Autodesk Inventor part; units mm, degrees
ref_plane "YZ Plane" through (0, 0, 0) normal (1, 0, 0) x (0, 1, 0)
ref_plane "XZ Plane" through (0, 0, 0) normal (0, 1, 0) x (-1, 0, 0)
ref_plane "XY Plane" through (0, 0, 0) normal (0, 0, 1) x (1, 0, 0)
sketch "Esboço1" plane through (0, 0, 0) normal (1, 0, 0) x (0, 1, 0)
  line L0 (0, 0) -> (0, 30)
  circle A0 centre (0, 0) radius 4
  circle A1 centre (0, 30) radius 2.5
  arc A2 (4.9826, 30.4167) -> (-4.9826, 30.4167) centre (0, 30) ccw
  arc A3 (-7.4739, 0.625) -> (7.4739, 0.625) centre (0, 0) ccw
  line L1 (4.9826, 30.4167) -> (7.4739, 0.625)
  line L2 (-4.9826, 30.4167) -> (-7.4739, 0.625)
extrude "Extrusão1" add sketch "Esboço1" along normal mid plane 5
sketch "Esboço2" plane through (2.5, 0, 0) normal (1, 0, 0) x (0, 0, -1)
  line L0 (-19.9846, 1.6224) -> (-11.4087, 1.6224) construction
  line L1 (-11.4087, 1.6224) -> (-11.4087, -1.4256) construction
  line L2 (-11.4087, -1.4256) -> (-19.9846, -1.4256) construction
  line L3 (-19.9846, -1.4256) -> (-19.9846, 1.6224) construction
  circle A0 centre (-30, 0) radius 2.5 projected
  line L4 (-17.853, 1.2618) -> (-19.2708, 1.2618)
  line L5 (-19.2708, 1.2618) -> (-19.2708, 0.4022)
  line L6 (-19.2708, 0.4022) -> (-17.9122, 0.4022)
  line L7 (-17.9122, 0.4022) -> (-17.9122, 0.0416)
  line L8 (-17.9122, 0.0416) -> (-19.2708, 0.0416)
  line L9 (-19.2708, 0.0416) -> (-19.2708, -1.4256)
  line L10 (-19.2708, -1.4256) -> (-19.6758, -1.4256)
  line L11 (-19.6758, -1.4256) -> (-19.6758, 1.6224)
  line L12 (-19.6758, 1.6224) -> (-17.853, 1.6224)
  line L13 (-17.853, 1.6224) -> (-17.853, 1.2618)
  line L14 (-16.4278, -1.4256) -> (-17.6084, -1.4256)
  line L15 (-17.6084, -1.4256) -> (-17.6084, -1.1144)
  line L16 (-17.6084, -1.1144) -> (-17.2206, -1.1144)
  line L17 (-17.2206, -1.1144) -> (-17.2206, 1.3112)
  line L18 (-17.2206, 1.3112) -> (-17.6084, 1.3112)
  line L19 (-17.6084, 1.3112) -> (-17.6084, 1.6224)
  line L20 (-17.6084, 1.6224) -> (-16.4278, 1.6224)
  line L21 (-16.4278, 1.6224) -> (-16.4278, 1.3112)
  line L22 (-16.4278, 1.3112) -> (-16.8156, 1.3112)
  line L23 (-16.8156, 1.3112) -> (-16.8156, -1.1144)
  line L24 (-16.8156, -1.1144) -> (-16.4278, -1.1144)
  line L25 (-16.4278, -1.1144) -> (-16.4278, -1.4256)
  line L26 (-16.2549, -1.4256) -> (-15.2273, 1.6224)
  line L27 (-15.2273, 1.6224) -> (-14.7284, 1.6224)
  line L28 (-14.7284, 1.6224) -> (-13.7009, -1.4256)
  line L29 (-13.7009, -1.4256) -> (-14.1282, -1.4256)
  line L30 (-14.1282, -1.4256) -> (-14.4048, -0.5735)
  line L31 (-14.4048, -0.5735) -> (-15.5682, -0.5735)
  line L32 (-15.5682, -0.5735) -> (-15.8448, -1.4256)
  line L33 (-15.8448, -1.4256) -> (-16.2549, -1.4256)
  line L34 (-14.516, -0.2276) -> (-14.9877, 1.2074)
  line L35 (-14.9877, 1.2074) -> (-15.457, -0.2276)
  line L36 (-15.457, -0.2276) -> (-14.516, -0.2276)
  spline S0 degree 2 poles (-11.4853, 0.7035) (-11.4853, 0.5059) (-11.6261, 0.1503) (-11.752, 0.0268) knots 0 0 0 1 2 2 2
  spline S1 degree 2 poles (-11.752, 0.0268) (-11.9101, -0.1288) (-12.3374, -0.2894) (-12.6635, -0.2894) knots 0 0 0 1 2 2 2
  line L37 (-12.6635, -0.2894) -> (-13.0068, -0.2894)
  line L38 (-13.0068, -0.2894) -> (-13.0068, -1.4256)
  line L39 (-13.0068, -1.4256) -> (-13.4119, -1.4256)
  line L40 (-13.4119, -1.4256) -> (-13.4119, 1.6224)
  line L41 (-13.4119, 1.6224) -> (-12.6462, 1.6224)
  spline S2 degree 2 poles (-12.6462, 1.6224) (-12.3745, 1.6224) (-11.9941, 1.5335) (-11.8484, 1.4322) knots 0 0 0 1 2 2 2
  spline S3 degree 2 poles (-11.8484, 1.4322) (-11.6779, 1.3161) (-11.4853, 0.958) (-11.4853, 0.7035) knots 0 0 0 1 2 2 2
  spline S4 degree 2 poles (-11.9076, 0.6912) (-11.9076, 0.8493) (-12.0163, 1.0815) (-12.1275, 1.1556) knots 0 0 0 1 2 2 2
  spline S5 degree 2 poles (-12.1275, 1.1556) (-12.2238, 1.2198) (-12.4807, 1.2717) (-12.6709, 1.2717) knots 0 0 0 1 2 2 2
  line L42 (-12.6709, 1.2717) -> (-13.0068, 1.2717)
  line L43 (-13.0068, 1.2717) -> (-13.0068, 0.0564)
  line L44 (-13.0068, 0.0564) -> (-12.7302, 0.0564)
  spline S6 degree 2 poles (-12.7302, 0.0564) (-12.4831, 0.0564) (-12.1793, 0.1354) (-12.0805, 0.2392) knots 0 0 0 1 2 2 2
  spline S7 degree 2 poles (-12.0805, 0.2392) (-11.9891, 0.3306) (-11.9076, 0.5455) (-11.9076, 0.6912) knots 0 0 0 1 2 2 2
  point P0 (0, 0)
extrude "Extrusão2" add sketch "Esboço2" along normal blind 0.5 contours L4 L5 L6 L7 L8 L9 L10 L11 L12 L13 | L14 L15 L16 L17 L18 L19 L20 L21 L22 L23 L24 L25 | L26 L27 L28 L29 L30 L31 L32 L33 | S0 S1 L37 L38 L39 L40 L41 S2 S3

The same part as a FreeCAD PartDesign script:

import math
import FreeCAD as App
import Part
import Sketcher

V = App.Vector
Q = App.Units.Quantity


def add_polygon(sketch, points):
    """Adds a closed chain of lines whose ends are joined by coincident constraints."""
    first, n = sketch.GeometryCount, len(points)
    for a, b in zip(points, points[1:] + points[:1]):
        sketch.addGeometry(Part.LineSegment(App.Vector(*a, 0), App.Vector(*b, 0)), False)
    for i in range(n):
        sketch.addConstraint(Sketcher.Constraint("Coincident", first + i, 2, first + (i + 1) % n, 1))

doc = App.newDocument("Part")
body = doc.addObject("PartDesign::Body", "Body")

# Sketch on YZ plane
sketch1 = doc.addObject("Sketcher::SketchObject", "Sketch")
body.addObject(sketch1)
sketch1.AttachmentSupport = (doc.YZ_Plane, [""])
sketch1.MapMode = "FlatFace"
sketch1.addGeometry([
    Part.LineSegment(V(7.4739, 0.625, 0), V(4.9826, 30.4167, 0)),  # 0
    Part.ArcOfCircle(Part.Circle(V(0, 30, 0), V(0, 0, 1), 4.999994), math.radians(4.780581), math.radians(175.219419)),  # 1
    Part.LineSegment(V(-4.9826, 30.4167, 0), V(-7.4739, 0.625, 0)),  # 2
    Part.ArcOfCircle(Part.Circle(V(0, 0, 0), V(0, 0, 1), 7.499987), math.radians(175.2198), math.radians(364.7802)),  # 3
    Part.Circle(V(0, 0, 0), V(0, 0, 1), 4),  # 4
    Part.Circle(V(0, 30, 0), V(0, 0, 1), 2.5),  # 5
], False)
sketch1.addConstraint([
    Sketcher.Constraint("Tangent", 0, 2, 1, 1),
    Sketcher.Constraint("Tangent", 1, 2, 2, 1),
    Sketcher.Constraint("Tangent", 2, 2, 3, 1),
    Sketcher.Constraint("Tangent", 3, 2, 0, 1),
    Sketcher.Constraint("Coincident", 3, 3, -1, 1),
    Sketcher.Constraint("Coincident", 4, 3, -1, 1),
    Sketcher.Constraint("Coincident", 5, 3, 1, 3),
    Sketcher.Constraint("PointOnObject", 1, 3, -2),
    Sketcher.Constraint("Diameter", 4, Q("8 mm")),
    Sketcher.Constraint("Diameter", 5, Q("5 mm")),
    Sketcher.Constraint("Radius", 1, Q("5 mm")),
    Sketcher.Constraint("Radius", 3, Q("7.5 mm")),
    Sketcher.Constraint("DistanceY", -1, 1, 1, 3, Q("30 mm")),
])
pad1 = doc.addObject("PartDesign::Pad", "Pad")
body.addObject(pad1)
pad1.Profile = sketch1
pad1.Length = 5
pad1.Midplane = True

# Sketch on YZ plane
sketch2 = doc.addObject("Sketcher::SketchObject", "Sketch001")
body.addObject(sketch2)
sketch2.AttachmentSupport = (doc.YZ_Plane, [""])
sketch2.MapMode = "FlatFace"
sketch2.AttachmentOffset = App.Placement(V(0, 0, 2.5), App.Rotation())
add_polygon(sketch2, [(1.2618, 19.2708), (1.2618, 17.853), (1.6224, 17.853), (1.6224, 19.6758), (-1.4256, 19.6758), (-1.4256, 19.2708), (0.0416, 19.2708), (0.0416, 17.9122), (0.4022, 17.9122), (0.4022, 19.2708)])  # lines 0-9
add_polygon(sketch2, [(-1.4256, 17.6084), (-1.4256, 16.4278), (-1.1144, 16.4278), (-1.1144, 16.8156), (1.3112, 16.8156), (1.3112, 16.4278), (1.6224, 16.4278), (1.6224, 17.6084), (1.3112, 17.6084), (1.3112, 17.2206), (-1.1144, 17.2206), (-1.1144, 17.6084)])  # lines 10-21
add_polygon(sketch2, [(1.6224, 15.2273), (-1.4256, 16.2549), (-1.4256, 15.8448), (-0.5735, 15.5682), (-0.5735, 14.4048), (-1.4256, 14.1282), (-1.4256, 13.7009), (1.6224, 14.7284)])  # lines 22-29
add_polygon(sketch2, [(1.2074, 14.9877), (-0.2276, 14.516), (-0.2276, 15.457)])  # lines 30-32
sketch2.addGeometry(Part.BSplineCurve([V(0.7035, 11.4853, 0), V(0.5059, 11.4853, 0), V(0.1503, 11.6261, 0), V(0.0268, 11.752, 0)], [3, 1, 3], [0, 1, 2], False, 2, [1, 1, 1, 1], False), False)  # 33
sketch2.addGeometry(Part.BSplineCurve([V(1.4322, 11.8484, 0), V(1.3161, 11.6779, 0), V(0.958, 11.4853, 0), V(0.7035, 11.4853, 0)], [3, 1, 3], [0, 1, 2], False, 2, [1, 1, 1, 1], False), False)  # 34
sketch2.addGeometry(Part.BSplineCurve([V(1.6224, 12.6462, 0), V(1.6224, 12.3745, 0), V(1.5335, 11.9941, 0), V(1.4322, 11.8484, 0)], [3, 1, 3], [0, 1, 2], False, 2, [1, 1, 1, 1], False), False)  # 35
sketch2.addGeometry(Part.LineSegment(V(1.6224, 12.6462, 0), V(1.6224, 13.4119, 0)), False)  # 36
sketch2.addGeometry(Part.LineSegment(V(1.6224, 13.4119, 0), V(-1.4256, 13.4119, 0)), False)  # 37
sketch2.addGeometry(Part.LineSegment(V(-1.4256, 13.4119, 0), V(-1.4256, 13.0068, 0)), False)  # 38
sketch2.addGeometry(Part.LineSegment(V(-1.4256, 13.0068, 0), V(-0.2894, 13.0068, 0)), False)  # 39
sketch2.addGeometry(Part.LineSegment(V(-0.2894, 13.0068, 0), V(-0.2894, 12.6635, 0)), False)  # 40
sketch2.addGeometry(Part.BSplineCurve([V(0.0268, 11.752, 0), V(-0.1288, 11.9101, 0), V(-0.2894, 12.3374, 0), V(-0.2894, 12.6635, 0)], [3, 1, 3], [0, 1, 2], False, 2, [1, 1, 1, 1], False), False)  # 41
sketch2.addGeometry(Part.BSplineCurve([V(0.6912, 11.9076, 0), V(0.8493, 11.9076, 0), V(1.0815, 12.0163, 0), V(1.1556, 12.1275, 0)], [3, 1, 3], [0, 1, 2], False, 2, [1, 1, 1, 1], False), False)  # 42
sketch2.addGeometry(Part.BSplineCurve([V(0.2392, 12.0805, 0), V(0.3306, 11.9891, 0), V(0.5455, 11.9076, 0), V(0.6912, 11.9076, 0)], [3, 1, 3], [0, 1, 2], False, 2, [1, 1, 1, 1], False), False)  # 43
sketch2.addGeometry(Part.BSplineCurve([V(0.0564, 12.7302, 0), V(0.0564, 12.4831, 0), V(0.1354, 12.1793, 0), V(0.2392, 12.0805, 0)], [3, 1, 3], [0, 1, 2], False, 2, [1, 1, 1, 1], False), False)  # 44
sketch2.addGeometry(Part.LineSegment(V(0.0564, 12.7302, 0), V(0.0564, 13.0068, 0)), False)  # 45
sketch2.addGeometry(Part.LineSegment(V(0.0564, 13.0068, 0), V(1.2717, 13.0068, 0)), False)  # 46
sketch2.addGeometry(Part.LineSegment(V(1.2717, 13.0068, 0), V(1.2717, 12.6709, 0)), False)  # 47
sketch2.addGeometry(Part.BSplineCurve([V(1.1556, 12.1275, 0), V(1.2198, 12.2238, 0), V(1.2717, 12.4807, 0), V(1.2717, 12.6709, 0)], [3, 1, 3], [0, 1, 2], False, 2, [1, 1, 1, 1], False), False)  # 48
sketch2.addConstraint([
    Sketcher.Constraint("Block", 33),
    Sketcher.Constraint("Block", 34),
    Sketcher.Constraint("Block", 35),
    Sketcher.Constraint("Block", 41),
    Sketcher.Constraint("Block", 42),
    Sketcher.Constraint("Block", 43),
    Sketcher.Constraint("Block", 44),
    Sketcher.Constraint("Block", 48),
    Sketcher.Constraint("Coincident", 35, 1, 36, 1),
    Sketcher.Constraint("Coincident", 36, 2, 37, 1),
    Sketcher.Constraint("Coincident", 37, 2, 38, 1),
    Sketcher.Constraint("Coincident", 38, 2, 39, 1),
    Sketcher.Constraint("Coincident", 39, 2, 40, 1),
    Sketcher.Constraint("Coincident", 40, 2, 41, 2),
    Sketcher.Constraint("Coincident", 44, 1, 45, 1),
    Sketcher.Constraint("Coincident", 45, 2, 46, 1),
    Sketcher.Constraint("Coincident", 46, 2, 47, 1),
    Sketcher.Constraint("Coincident", 47, 2, 48, 2),
    Sketcher.Constraint("Vertical", 0),
    Sketcher.Constraint("Horizontal", 1),
    Sketcher.Constraint("Vertical", 2),
    Sketcher.Constraint("Horizontal", 3),
    Sketcher.Constraint("Vertical", 4),
    Sketcher.Constraint("Horizontal", 5),
    Sketcher.Constraint("Vertical", 6),
    Sketcher.Constraint("Horizontal", 7),
    Sketcher.Constraint("Vertical", 8),
    Sketcher.Constraint("Horizontal", 9),
    Sketcher.Constraint("Vertical", 10),
    Sketcher.Constraint("Horizontal", 11),
    Sketcher.Constraint("Vertical", 12),
    Sketcher.Constraint("Horizontal", 13),
    Sketcher.Constraint("Vertical", 14),
    Sketcher.Constraint("Horizontal", 15),
    Sketcher.Constraint("Vertical", 16),
    Sketcher.Constraint("Horizontal", 17),
    Sketcher.Constraint("Vertical", 18),
    Sketcher.Constraint("Horizontal", 19),
    Sketcher.Constraint("Vertical", 20),
    Sketcher.Constraint("Horizontal", 21),
    Sketcher.Constraint("Vertical", 23),
    Sketcher.Constraint("Vertical", 25),
    Sketcher.Constraint("Vertical", 27),
    Sketcher.Constraint("Vertical", 29),
    Sketcher.Constraint("Vertical", 31),
    Sketcher.Constraint("Vertical", 36),
    Sketcher.Constraint("Horizontal", 37),
    Sketcher.Constraint("Vertical", 38),
    Sketcher.Constraint("Horizontal", 39),
    Sketcher.Constraint("Vertical", 40),
    Sketcher.Constraint("Vertical", 45),
    Sketcher.Constraint("Horizontal", 46),
    Sketcher.Constraint("Vertical", 47),
    Sketcher.Constraint("Horizontal", 5, 2, 8, 2),
    Sketcher.Constraint("Horizontal", 11, 2, 14, 2),
    Sketcher.Constraint("Horizontal", 17, 2, 20, 2),
    Sketcher.Constraint("Horizontal", 39, 2, 45, 2),
    Sketcher.Constraint("Vertical", 4, 2, 10, 2),
    Sketcher.Constraint("Vertical", 2, 2, 15, 2),
    Sketcher.Constraint("Vertical", 14, 2, 17, 2),
    Sketcher.Constraint("Vertical", 12, 2, 19, 2),
    Sketcher.Constraint("Vertical", 21, 2, 22, 2),
    Sketcher.Constraint("Vertical", 23, 2, 26, 2),
    Sketcher.Constraint("Vertical", 16, 2, 28, 2),
    Sketcher.Constraint("Vertical", 29, 2, 36, 2),
    Sketcher.Constraint("Vertical", 27, 2, 37, 2),
    Sketcher.Constraint("Equal", 1, 7),
    Sketcher.Constraint("Equal", 11, 15),
    Sketcher.Constraint("Equal", 14, 18),
    Sketcher.Constraint("Equal", 4, 38),
    Sketcher.Constraint("Equal", 24, 26),
    Sketcher.Constraint("Equal", 22, 28),
    Sketcher.Constraint("DistanceY", 23, 2, 23, 1, Q("0.41 mm")),
    Sketcher.Constraint("Angle", 22, Q("161.369 deg")),
    Sketcher.Constraint("Angle", 32, Q("-18.1097 deg")),
    Sketcher.Constraint("DistanceX", 3, 2, 3, 1, Q("3.048 mm")),
    Sketcher.Constraint("DistanceY", 4, 2, 4, 1, Q("0.405 mm")),
    Sketcher.Constraint("DistanceY", 29, 1, 29, 2, Q("0.499 mm")),
    Sketcher.Constraint("DistanceY", 31, 1, 31, 2, Q("0.941 mm")),
    Sketcher.Constraint("DistanceY", 47, 2, 47, 1, Q("0.336 mm")),
    Sketcher.Constraint("DistanceY", 25, 2, 23, 2, Q("1.44 mm")),
    Sketcher.Constraint("DistanceY", 32, 2, 14, 2, Q("1.44 mm")),
    Sketcher.Constraint("DistanceX", 30, 2, 36, 2, Q("1.85 mm")),
    Sketcher.Constraint("DistanceX", 25, 2, 45, 2, Q("0.63 mm")),
    Sketcher.Constraint("DistanceX", 1, 1, 1, 2, Q("0.3606 mm")),
    Sketcher.Constraint("DistanceX", 5, 1, 5, 2, Q("1.4672 mm")),
    Sketcher.Constraint("DistanceX", 11, 1, 11, 2, Q("0.3112 mm")),
    Sketcher.Constraint("DistanceY", 0, 2, 0, 1, Q("1.4178 mm")),
    Sketcher.Constraint("DistanceY", 6, 2, 6, 1, Q("1.3586 mm")),
    Sketcher.Constraint("DistanceY", 10, 2, 10, 1, Q("1.1806 mm")),
    Sketcher.Constraint("DistanceY", 12, 1, 12, 2, Q("0.3878 mm")),
    Sketcher.Constraint("DistanceY", 25, 2, 25, 1, Q("1.1634 mm")),
    Sketcher.Constraint("DistanceY", -1, 1, 0, 2, Q("17.853 mm")),
    Sketcher.Constraint("DistanceY", -1, 1, 22, 2, Q("16.255 mm")),
    Sketcher.Constraint("DistanceY", -1, 1, 30, 2, Q("14.516 mm")),
    Sketcher.Constraint("DistanceY", 10, 2, 4, 2, Q("2.843 mm")),
])
pad2 = doc.addObject("PartDesign::Pad", "Pad001")
body.addObject(pad2)
pad2.Profile = sketch2
pad2.Length = 0.5

doc.recompute()
